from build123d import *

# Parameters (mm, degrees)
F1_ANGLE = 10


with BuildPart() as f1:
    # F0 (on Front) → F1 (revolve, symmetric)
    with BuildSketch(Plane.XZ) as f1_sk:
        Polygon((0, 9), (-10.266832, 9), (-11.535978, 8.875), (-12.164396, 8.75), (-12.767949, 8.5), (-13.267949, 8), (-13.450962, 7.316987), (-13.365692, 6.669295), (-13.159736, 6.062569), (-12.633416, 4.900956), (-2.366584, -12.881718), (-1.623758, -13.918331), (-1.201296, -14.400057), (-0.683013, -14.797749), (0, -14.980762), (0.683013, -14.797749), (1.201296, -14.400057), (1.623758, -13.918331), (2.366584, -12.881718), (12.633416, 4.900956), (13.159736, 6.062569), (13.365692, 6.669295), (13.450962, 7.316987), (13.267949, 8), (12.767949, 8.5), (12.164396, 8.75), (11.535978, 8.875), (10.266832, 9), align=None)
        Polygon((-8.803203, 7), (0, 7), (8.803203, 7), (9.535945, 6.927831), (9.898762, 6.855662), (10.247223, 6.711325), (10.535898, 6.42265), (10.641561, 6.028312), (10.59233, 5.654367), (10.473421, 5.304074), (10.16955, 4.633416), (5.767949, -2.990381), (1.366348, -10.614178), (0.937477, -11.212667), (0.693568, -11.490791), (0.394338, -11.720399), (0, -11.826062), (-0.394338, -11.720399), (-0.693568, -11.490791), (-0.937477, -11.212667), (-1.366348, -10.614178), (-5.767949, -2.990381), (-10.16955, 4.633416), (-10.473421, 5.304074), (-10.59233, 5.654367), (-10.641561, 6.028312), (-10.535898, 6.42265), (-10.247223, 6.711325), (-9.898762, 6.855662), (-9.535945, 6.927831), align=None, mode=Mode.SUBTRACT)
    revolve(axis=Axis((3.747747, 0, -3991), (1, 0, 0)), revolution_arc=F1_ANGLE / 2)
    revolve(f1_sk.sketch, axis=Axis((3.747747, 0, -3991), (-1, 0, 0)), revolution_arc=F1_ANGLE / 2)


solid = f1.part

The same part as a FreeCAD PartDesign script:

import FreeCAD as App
import Part
import Sketcher


def add_polygon(sketch, points):
    """Adds a closed chain of lines whose ends are joined by coincident constraints."""
    first, n = sketch.GeometryCount, len(points)
    for a, b in zip(points, points[1:] + points[:1]):
        sketch.addGeometry(Part.LineSegment(App.Vector(*a, 0), App.Vector(*b, 0)), False)
    for i in range(n):
        sketch.addConstraint(Sketcher.Constraint("Coincident", first + i, 2, first + (i + 1) % n, 1))

doc = App.newDocument("Part")
body = doc.addObject("PartDesign::Body", "Body")

sketch1 = body.newObject("Sketcher::SketchObject", "Sketch")
sketch1.AttachmentSupport = (doc.getObject("XZ_Plane"), [""])
sketch1.MapMode = "FlatFace"
add_polygon(sketch1, [(-10.266832, 9), (-11.535978, 8.875), (-12.164396, 8.75), (-12.767949, 8.5), (-13.267949, 8), (-13.450962, 7.316987), (-13.365692, 6.669295), (-13.159736, 6.062569), (-12.633416, 4.900956), (-2.366584, -12.881718), (-1.623758, -13.918331), (-1.201296, -14.400057), (-0.683013, -14.797749), (0, -14.980762), (0.683013, -14.797749), (1.201296, -14.400057), (1.623758, -13.918331), (2.366584, -12.881718), (12.633416, 4.900956), (13.159736, 6.062569), (13.365692, 6.669295), (13.450962, 7.316987), (13.267949, 8), (12.767949, 8.5), (12.164396, 8.75), (11.535978, 8.875), (10.266832, 9)])
add_polygon(sketch1, [(-9.535945, 6.927831), (-8.803203, 7), (8.803203, 7), (9.535945, 6.927831), (9.898762, 6.855662), (10.247223, 6.711325), (10.535898, 6.42265), (10.641561, 6.028312), (10.59233, 5.654367), (10.473421, 5.304074), (10.16955, 4.633416), (1.366348, -10.614178), (0.937477, -11.212667), (0.693568, -11.490791), (0.394338, -11.720399), (0, -11.826062), (-0.394338, -11.720399), (-0.693568, -11.490791), (-0.937477, -11.212667), (-1.366348, -10.614178), (-10.16955, 4.633416), (-10.473421, 5.304074), (-10.59233, 5.654367), (-10.641561, 6.028312), (-10.535898, 6.42265), (-10.247223, 6.711325), (-9.898762, 6.855662)])
sketch1.addGeometry(Part.LineSegment(App.Vector(-13.450962, -3991, 0), App.Vector(13.450962, -3991, 0)), True)
sketch1.addConstraint([
    Sketcher.Constraint("Horizontal", 26),
    Sketcher.Constraint("Horizontal", 28),
    Sketcher.Constraint("Horizontal", 54),
    Sketcher.Constraint("PointOnObject", 12, 2, -2),
    Sketcher.Constraint("PointOnObject", 41, 2, -2),
    Sketcher.Constraint("DistanceY", -1, 1, 3, 2, 8.0),
    Sketcher.Constraint("DistanceY", -1, 1, 21, 2, 8.0),
    Sketcher.Constraint("DistanceY", -1, 1, 25, 2, 9.0),
    Sketcher.Constraint("DistanceY", -1, 1, 27, 2, 7.0),
    Sketcher.Constraint("DistanceY", 54, 1, -1, 1, 3991.0),
    Sketcher.Constraint("DistanceX", 8, 2, 17, 2, 15.0),
    Sketcher.Constraint("DistanceY", -1, 1, 2, 2, 8.5),
    Sketcher.Constraint("DistanceY", -1, 1, 22, 2, 8.5),
    Sketcher.Constraint("DistanceX", 3, 2, 2, 2, 0.5),
    Sketcher.Constraint("DistanceX", 22, 2, 21, 2, 0.5),
    Sketcher.Constraint("DistanceY", -1, 1, 1, 2, 8.75),
    Sketcher.Constraint("DistanceY", -1, 1, 23, 2, 8.75),
    Sketcher.Constraint("DistanceY", -1, 1, 0, 2, 8.875),
    Sketcher.Constraint("DistanceY", -1, 1, 24, 2, 8.875),
    Sketcher.Constraint("DistanceY", 40, 2, -1, 1, 11.720399),
    Sketcher.Constraint("DistanceY", 42, 2, -1, 1, 11.720399),
    Sketcher.Constraint("DistanceY", 9, 2, 6, 2, 19.9809),
    Sketcher.Constraint("DistanceY", 15, 2, 18, 2, 19.9809),
    Sketcher.Constraint("DistanceX", 30, 2, 33, 2, 0.742799),
    Sketcher.Constraint("DistanceX", 31, 2, 35, 2, 0.226198),
    Sketcher.Constraint("DistanceX", 47, 2, 51, 2, 0.226198),
    Sketcher.Constraint("DistanceX", 49, 2, 52, 2, 0.742799),
    Sketcher.Constraint("Distance", 1, 0.640729),
    Sketcher.Constraint("Distance", 2, 0.653281),
    Sketcher.Constraint("Distance", 5, 0.653281),
    Sketcher.Constraint("Distance", 6, 0.64073),
    Sketcher.Constraint("Distance", 10, 0.640729),
    Sketcher.Constraint("Distance", 11, 0.653281),
    Sketcher.Constraint("Distance", 14, 0.653281),
    Sketcher.Constraint("Distance", 15, 0.640729),
    Sketcher.Constraint("Distance", 19, 0.64073),
    Sketcher.Constraint("Distance", 20, 0.653281),
    Sketcher.Constraint("Distance", 23, 0.653281),
    Sketcher.Constraint("Distance", 24, 0.640729),
    Sketcher.Constraint("Distance", 31, 0.377171),
    Sketcher.Constraint("Distance", 32, 0.408248),
    Sketcher.Constraint("Distance", 33, 0.408249),
    Sketcher.Constraint("Distance", 34, 0.377172),
    Sketcher.Constraint("Distance", 40, 0.377172),
    Sketcher.Constraint("Distance", 41, 0.408249),
    Sketcher.Constraint("Distance", 42, 0.408249),
    Sketcher.Constraint("Distance", 43, 0.377172),
    Sketcher.Constraint("Distance", 49, 0.377172),
    Sketcher.Constraint("Distance", 50, 0.408249),
    Sketcher.Constraint("Distance", 51, 0.408248),
    Sketcher.Constraint("Distance", 52, 0.377171),
    Sketcher.Constraint("DistanceX", 26, 2, 26, 1, 20.533664),
    Sketcher.Constraint("DistanceX", 28, 1, 28, 2, 17.606406),
    Sketcher.Constraint("DistanceX", 54, 1, 54, 2, 26.901924),
    Sketcher.Constraint("DistanceX", 2, 2, -1, 1, 12.767949),
    Sketcher.Constraint("DistanceX", 5, 2, -1, 1, 13.365692),
    Sketcher.Constraint("DistanceY", -1, 1, 6, 2, 6.062569),
    Sketcher.Constraint("DistanceY", 11, 2, -1, 1, 14.797749),
    Sketcher.Constraint("DistanceY", 13, 2, -1, 1, 14.797749),
    Sketcher.Constraint("DistanceY", 15, 2, -1, 1, 13.918331),
    Sketcher.Constraint("DistanceX", -1, 1, 19, 2, 13.365692),
    Sketcher.Constraint("DistanceX", -1, 1, 21, 2, 13.267949),
    Sketcher.Constraint("DistanceY", -1, 1, 29, 2, 6.927831),
    Sketcher.Constraint("DistanceY", -1, 1, 30, 2, 6.855662),
    Sketcher.Constraint("DistanceY", -1, 1, 32, 2, 6.42265),
    Sketcher.Constraint("DistanceX", -1, 1, 33, 2, 10.641561),
    Sketcher.Constraint("DistanceY", -1, 1, 33, 2, 6.028312),
    Sketcher.Constraint("DistanceX", -1, 1, 34, 2, 10.59233),
    Sketcher.Constraint("DistanceX", -1, 1, 36, 2, 10.16955),
    Sketcher.Constraint("DistanceY", 37, 2, -1, 1, 10.614178),
    Sketcher.Constraint("DistanceY", 39, 2, -1, 1, 11.490791),
    Sketcher.Constraint("DistanceY", 43, 2, -1, 1, 11.490791),
    Sketcher.Constraint("DistanceY", 45, 2, -1, 1, 10.614178),
    Sketcher.Constraint("DistanceX", 46, 2, -1, 1, 10.16955),
    Sketcher.Constraint("DistanceX", 47, 2, -1, 1, 10.473421),
    Sketcher.Constraint("DistanceX", 48, 2, -1, 1, 10.59233),
    Sketcher.Constraint("DistanceX", 49, 2, -1, 1, 10.641561),
    Sketcher.Constraint("DistanceY", -1, 1, 49, 2, 6.028312),
    Sketcher.Constraint("DistanceY", -1, 1, 50, 2, 6.42265),
    Sketcher.Constraint("DistanceY", -1, 1, 53, 2, 6.927831),
    Sketcher.Constraint("DistanceX", 4, 2, 5, 2, 0.08527),
    Sketcher.Constraint("DistanceY", 6, 2, 4, 2, 1.254418),
    Sketcher.Constraint("DistanceX", 6, 2, 7, 2, 0.52632),
    Sketcher.Constraint("DistanceY", 7, 2, 5, 2, 1.768339),
    Sketcher.Constraint("DistanceX", 4, 2, 8, 2, 11.084378),
    Sketcher.Constraint("DistanceX", 8, 2, 10, 2, 1.165288),
    Sketcher.Constraint("DistanceY", 10, 2, 8, 2, 1.518339),
    Sketcher.Constraint("DistanceY", 11, 2, 10, 2, 0.397692),
    Sketcher.Constraint("DistanceY", 12, 2, 9, 2, 1.062431),
    Sketcher.Constraint("DistanceX", 10, 2, 13, 2, 1.884309),
    Sketcher.Constraint("DistanceY", 13, 2, 14, 2, 0.397692),
    Sketcher.Constraint("DistanceX", 14, 2, 16, 2, 1.165288),
    Sketcher.Constraint("DistanceY", 14, 2, 16, 2, 1.518339),
    Sketcher.Constraint("DistanceX", 17, 2, 18, 2, 0.52632),
    Sketcher.Constraint("DistanceY", 17, 2, 19, 2, 1.768339),
    Sketcher.Constraint("DistanceX", 19, 2, 20, 2, 0.08527),
    Sketcher.Constraint("DistanceX", 25, 2, 20, 2, 3.18413),
    Sketcher.Constraint("DistanceX", 26, 2, 27, 2, 1.463629),
    Sketcher.Constraint("DistanceX", 29, 2, 23, 2, 2.628451),
    Sketcher.Constraint("DistanceY", 35, 2, 31, 2, 1.407251),
    Sketcher.Constraint("DistanceY", 36, 2, 34, 2, 1.020951),
    Sketcher.Constraint("DistanceX", 37, 2, 15, 2, 0.25741),
    Sketcher.Constraint("DistanceX", 38, 2, 37, 2, 0.428871),
    Sketcher.Constraint("DistanceY", 38, 2, 37, 2, 0.598489),
    Sketcher.Constraint("DistanceX", 39, 2, 38, 2, 0.243909),
    Sketcher.Constraint("DistanceX", 44, 2, 43, 2, 0.243909),
    Sketcher.Constraint("DistanceX", 45, 2, 44, 2, 0.428871),
    Sketcher.Constraint("DistanceY", 44, 2, 45, 2, 0.598489),
    Sketcher.Constraint("DistanceY", 46, 2, 7, 2, 0.26754),
    Sketcher.Constraint("DistanceY", 7, 2, 47, 2, 0.403118),
    Sketcher.Constraint("DistanceX", 51, 2, 53, 2, 0.711278),
    Sketcher.Constraint("DistanceX", 54, 1, 11, 2, 12.767949),
])
revolution = body.newObject("PartDesign::Revolution", "Revolution")
revolution.Profile = sketch1
revolution.ReferenceAxis = (sketch1, ["Axis0"])
revolution.Angle = 5

sketch2 = body.newObject("Sketcher::SketchObject", "Sketch001")
sketch2.AttachmentSupport = (doc.getObject("XZ_Plane"), [""])
sketch2.MapMode = "FlatFace"
add_polygon(sketch2, [(-10.266832, 9), (-11.535978, 8.875), (-12.164396, 8.75), (-12.767949, 8.5), (-13.267949, 8), (-13.450962, 7.316987), (-13.365692, 6.669295), (-13.159736, 6.062569), (-12.633416, 4.900956), (-2.366584, -12.881718), (-1.623758, -13.918331), (-1.201296, -14.400057), (-0.683013, -14.797749), (0, -14.980762), (0.683013, -14.797749), (1.201296, -14.400057), (1.623758, -13.918331), (2.366584, -12.881718), (12.633416, 4.900956), (13.159736, 6.062569), (13.365692, 6.669295), (13.450962, 7.316987), (13.267949, 8), (12.767949, 8.5), (12.164396, 8.75), (11.535978, 8.875), (10.266832, 9)])
add_polygon(sketch2, [(-9.535945, 6.927831), (-8.803203, 7), (8.803203, 7), (9.535945, 6.927831), (9.898762, 6.855662), (10.247223, 6.711325), (10.535898, 6.42265), (10.641561, 6.028312), (10.59233, 5.654367), (10.473421, 5.304074), (10.16955, 4.633416), (1.366348, -10.614178), (0.937477, -11.212667), (0.693568, -11.490791), (0.394338, -11.720399), (0, -11.826062), (-0.394338, -11.720399), (-0.693568, -11.490791), (-0.937477, -11.212667), (-1.366348, -10.614178), (-10.16955, 4.633416), (-10.473421, 5.304074), (-10.59233, 5.654367), (-10.641561, 6.028312), (-10.535898, 6.42265), (-10.247223, 6.711325), (-9.898762, 6.855662)])
sketch2.addGeometry(Part.LineSegment(App.Vector(13.450962, -3991, 0), App.Vector(-13.450962, -3991, 0)), True)
sketch2.addConstraint([
    Sketcher.Constraint("Horizontal", 26),
    Sketcher.Constraint("Horizontal", 28),
    Sketcher.Constraint("Horizontal", 54),
    Sketcher.Constraint("PointOnObject", 12, 2, -2),
    Sketcher.Constraint("PointOnObject", 41, 2, -2),
    Sketcher.Constraint("DistanceY", -1, 1, 3, 2, 8.0),
    Sketcher.Constraint("DistanceY", -1, 1, 21, 2, 8.0),
    Sketcher.Constraint("DistanceY", -1, 1, 25, 2, 9.0),
    Sketcher.Constraint("DistanceY", -1, 1, 27, 2, 7.0),
    Sketcher.Constraint("DistanceY", 54, 1, -1, 1, 3991.0),
    Sketcher.Constraint("DistanceX", 8, 2, 17, 2, 15.0),
    Sketcher.Constraint("DistanceY", -1, 1, 2, 2, 8.5),
    Sketcher.Constraint("DistanceY", -1, 1, 22, 2, 8.5),
    Sketcher.Constraint("DistanceX", 3, 2, 2, 2, 0.5),
    Sketcher.Constraint("DistanceX", 22, 2, 21, 2, 0.5),
    Sketcher.Constraint("DistanceY", -1, 1, 1, 2, 8.75),
    Sketcher.Constraint("DistanceY", -1, 1, 23, 2, 8.75),
    Sketcher.Constraint("DistanceY", -1, 1, 0, 2, 8.875),
    Sketcher.Constraint("DistanceY", -1, 1, 24, 2, 8.875),
    Sketcher.Constraint("DistanceY", 40, 2, -1, 1, 11.720399),
    Sketcher.Constraint("DistanceY", 42, 2, -1, 1, 11.720399),
    Sketcher.Constraint("DistanceY", 9, 2, 6, 2, 19.9809),
    Sketcher.Constraint("DistanceY", 15, 2, 18, 2, 19.9809),
    Sketcher.Constraint("DistanceX", 30, 2, 33, 2, 0.742799),
    Sketcher.Constraint("DistanceX", 31, 2, 35, 2, 0.226198),
    Sketcher.Constraint("DistanceX", 47, 2, 51, 2, 0.226198),
    Sketcher.Constraint("DistanceX", 49, 2, 52, 2, 0.742799),
    Sketcher.Constraint("Distance", 1, 0.640729),
    Sketcher.Constraint("Distance", 2, 0.653281),
    Sketcher.Constraint("Distance", 5, 0.653281),
    Sketcher.Constraint("Distance", 6, 0.64073),
    Sketcher.Constraint("Distance", 10, 0.640729),
    Sketcher.Constraint("Distance", 11, 0.653281),
    Sketcher.Constraint("Distance", 14, 0.653281),
    Sketcher.Constraint("Distance", 15, 0.640729),
    Sketcher.Constraint("Distance", 19, 0.64073),
    Sketcher.Constraint("Distance", 20, 0.653281),
    Sketcher.Constraint("Distance", 23, 0.653281),
    Sketcher.Constraint("Distance", 24, 0.640729),
    Sketcher.Constraint("Distance", 31, 0.377171),
    Sketcher.Constraint("Distance", 32, 0.408248),
    Sketcher.Constraint("Distance", 33, 0.408249),
    Sketcher.Constraint("Distance", 34, 0.377172),
    Sketcher.Constraint("Distance", 40, 0.377172),
    Sketcher.Constraint("Distance", 41, 0.408249),
    Sketcher.Constraint("Distance", 42, 0.408249),
    Sketcher.Constraint("Distance", 43, 0.377172),
    Sketcher.Constraint("Distance", 49, 0.377172),
    Sketcher.Constraint("Distance", 50, 0.408249),
    Sketcher.Constraint("Distance", 51, 0.408248),
    Sketcher.Constraint("Distance", 52, 0.377171),
    Sketcher.Constraint("DistanceX", 26, 2, 26, 1, 20.533664),
    Sketcher.Constraint("DistanceX", 28, 1, 28, 2, 17.606406),
    Sketcher.Constraint("DistanceX", 54, 2, 54, 1, 26.901924),
    Sketcher.Constraint("DistanceX", 2, 2, -1, 1, 12.767949),
    Sketcher.Constraint("DistanceX", 5, 2, -1, 1, 13.365692),
    Sketcher.Constraint("DistanceY", -1, 1, 6, 2, 6.062569),
    Sketcher.Constraint("DistanceY", 11, 2, -1, 1, 14.797749),
    Sketcher.Constraint("DistanceY", 13, 2, -1, 1, 14.797749),
    Sketcher.Constraint("DistanceY", 15, 2, -1, 1, 13.918331),
    Sketcher.Constraint("DistanceX", -1, 1, 19, 2, 13.365692),
    Sketcher.Constraint("DistanceX", -1, 1, 21, 2, 13.267949),
    Sketcher.Constraint("DistanceY", -1, 1, 29, 2, 6.927831),
    Sketcher.Constraint("DistanceY", -1, 1, 30, 2, 6.855662),
    Sketcher.Constraint("DistanceY", -1, 1, 32, 2, 6.42265),
    Sketcher.Constraint("DistanceX", -1, 1, 33, 2, 10.641561),
    Sketcher.Constraint("DistanceY", -1, 1, 33, 2, 6.028312),
    Sketcher.Constraint("DistanceX", -1, 1, 34, 2, 10.59233),
    Sketcher.Constraint("DistanceX", -1, 1, 36, 2, 10.16955),
    Sketcher.Constraint("DistanceY", 37, 2, -1, 1, 10.614178),
    Sketcher.Constraint("DistanceY", 39, 2, -1, 1, 11.490791),
    Sketcher.Constraint("DistanceY", 43, 2, -1, 1, 11.490791),
    Sketcher.Constraint("DistanceY", 45, 2, -1, 1, 10.614178),
    Sketcher.Constraint("DistanceX", 46, 2, -1, 1, 10.16955),
    Sketcher.Constraint("DistanceX", 47, 2, -1, 1, 10.473421),
    Sketcher.Constraint("DistanceX", 48, 2, -1, 1, 10.59233),
    Sketcher.Constraint("DistanceX", 49, 2, -1, 1, 10.641561),
    Sketcher.Constraint("DistanceY", -1, 1, 49, 2, 6.028312),
    Sketcher.Constraint("DistanceY", -1, 1, 50, 2, 6.42265),
    Sketcher.Constraint("DistanceY", -1, 1, 53, 2, 6.927831),
    Sketcher.Constraint("DistanceX", 4, 2, 5, 2, 0.08527),
    Sketcher.Constraint("DistanceY", 6, 2, 4, 2, 1.254418),
    Sketcher.Constraint("DistanceX", 6, 2, 7, 2, 0.52632),
    Sketcher.Constraint("DistanceY", 7, 2, 5, 2, 1.768339),
    Sketcher.Constraint("DistanceX", 4, 2, 8, 2, 11.084378),
    Sketcher.Constraint("DistanceX", 8, 2, 10, 2, 1.165288),
    Sketcher.Constraint("DistanceY", 10, 2, 8, 2, 1.518339),
    Sketcher.Constraint("DistanceY", 11, 2, 10, 2, 0.397692),
    Sketcher.Constraint("DistanceY", 12, 2, 9, 2, 1.062431),
    Sketcher.Constraint("DistanceX", 10, 2, 13, 2, 1.884309),
    Sketcher.Constraint("DistanceY", 13, 2, 14, 2, 0.397692),
    Sketcher.Constraint("DistanceX", 14, 2, 16, 2, 1.165288),
    Sketcher.Constraint("DistanceY", 14, 2, 16, 2, 1.518339),
    Sketcher.Constraint("DistanceX", 17, 2, 18, 2, 0.52632),
    Sketcher.Constraint("DistanceY", 17, 2, 19, 2, 1.768339),
    Sketcher.Constraint("DistanceX", 19, 2, 20, 2, 0.08527),
    Sketcher.Constraint("DistanceX", 25, 2, 20, 2, 3.18413),
    Sketcher.Constraint("DistanceX", 26, 2, 27, 2, 1.463629),
    Sketcher.Constraint("DistanceX", 29, 2, 23, 2, 2.628451),
    Sketcher.Constraint("DistanceY", 35, 2, 31, 2, 1.407251),
    Sketcher.Constraint("DistanceY", 36, 2, 34, 2, 1.020951),
    Sketcher.Constraint("DistanceX", 37, 2, 15, 2, 0.25741),
    Sketcher.Constraint("DistanceX", 38, 2, 37, 2, 0.428871),
    Sketcher.Constraint("DistanceY", 38, 2, 37, 2, 0.598489),
    Sketcher.Constraint("DistanceX", 39, 2, 38, 2, 0.243909),
    Sketcher.Constraint("DistanceX", 44, 2, 43, 2, 0.243909),
    Sketcher.Constraint("DistanceX", 45, 2, 44, 2, 0.428871),
    Sketcher.Constraint("DistanceY", 44, 2, 45, 2, 0.598489),
    Sketcher.Constraint("DistanceY", 46, 2, 7, 2, 0.26754),
    Sketcher.Constraint("DistanceY", 7, 2, 47, 2, 0.403118),
    Sketcher.Constraint("DistanceX", 51, 2, 53, 2, 0.711278),
    Sketcher.Constraint("DistanceX", 13, 2, 54, 1, 12.767949),
])
revolution2 = body.newObject("PartDesign::Revolution", "Revolution001")
revolution2.Profile = sketch2
revolution2.ReferenceAxis = (sketch2, ["Axis0"])
revolution2.Angle = 5

doc.recompute()
